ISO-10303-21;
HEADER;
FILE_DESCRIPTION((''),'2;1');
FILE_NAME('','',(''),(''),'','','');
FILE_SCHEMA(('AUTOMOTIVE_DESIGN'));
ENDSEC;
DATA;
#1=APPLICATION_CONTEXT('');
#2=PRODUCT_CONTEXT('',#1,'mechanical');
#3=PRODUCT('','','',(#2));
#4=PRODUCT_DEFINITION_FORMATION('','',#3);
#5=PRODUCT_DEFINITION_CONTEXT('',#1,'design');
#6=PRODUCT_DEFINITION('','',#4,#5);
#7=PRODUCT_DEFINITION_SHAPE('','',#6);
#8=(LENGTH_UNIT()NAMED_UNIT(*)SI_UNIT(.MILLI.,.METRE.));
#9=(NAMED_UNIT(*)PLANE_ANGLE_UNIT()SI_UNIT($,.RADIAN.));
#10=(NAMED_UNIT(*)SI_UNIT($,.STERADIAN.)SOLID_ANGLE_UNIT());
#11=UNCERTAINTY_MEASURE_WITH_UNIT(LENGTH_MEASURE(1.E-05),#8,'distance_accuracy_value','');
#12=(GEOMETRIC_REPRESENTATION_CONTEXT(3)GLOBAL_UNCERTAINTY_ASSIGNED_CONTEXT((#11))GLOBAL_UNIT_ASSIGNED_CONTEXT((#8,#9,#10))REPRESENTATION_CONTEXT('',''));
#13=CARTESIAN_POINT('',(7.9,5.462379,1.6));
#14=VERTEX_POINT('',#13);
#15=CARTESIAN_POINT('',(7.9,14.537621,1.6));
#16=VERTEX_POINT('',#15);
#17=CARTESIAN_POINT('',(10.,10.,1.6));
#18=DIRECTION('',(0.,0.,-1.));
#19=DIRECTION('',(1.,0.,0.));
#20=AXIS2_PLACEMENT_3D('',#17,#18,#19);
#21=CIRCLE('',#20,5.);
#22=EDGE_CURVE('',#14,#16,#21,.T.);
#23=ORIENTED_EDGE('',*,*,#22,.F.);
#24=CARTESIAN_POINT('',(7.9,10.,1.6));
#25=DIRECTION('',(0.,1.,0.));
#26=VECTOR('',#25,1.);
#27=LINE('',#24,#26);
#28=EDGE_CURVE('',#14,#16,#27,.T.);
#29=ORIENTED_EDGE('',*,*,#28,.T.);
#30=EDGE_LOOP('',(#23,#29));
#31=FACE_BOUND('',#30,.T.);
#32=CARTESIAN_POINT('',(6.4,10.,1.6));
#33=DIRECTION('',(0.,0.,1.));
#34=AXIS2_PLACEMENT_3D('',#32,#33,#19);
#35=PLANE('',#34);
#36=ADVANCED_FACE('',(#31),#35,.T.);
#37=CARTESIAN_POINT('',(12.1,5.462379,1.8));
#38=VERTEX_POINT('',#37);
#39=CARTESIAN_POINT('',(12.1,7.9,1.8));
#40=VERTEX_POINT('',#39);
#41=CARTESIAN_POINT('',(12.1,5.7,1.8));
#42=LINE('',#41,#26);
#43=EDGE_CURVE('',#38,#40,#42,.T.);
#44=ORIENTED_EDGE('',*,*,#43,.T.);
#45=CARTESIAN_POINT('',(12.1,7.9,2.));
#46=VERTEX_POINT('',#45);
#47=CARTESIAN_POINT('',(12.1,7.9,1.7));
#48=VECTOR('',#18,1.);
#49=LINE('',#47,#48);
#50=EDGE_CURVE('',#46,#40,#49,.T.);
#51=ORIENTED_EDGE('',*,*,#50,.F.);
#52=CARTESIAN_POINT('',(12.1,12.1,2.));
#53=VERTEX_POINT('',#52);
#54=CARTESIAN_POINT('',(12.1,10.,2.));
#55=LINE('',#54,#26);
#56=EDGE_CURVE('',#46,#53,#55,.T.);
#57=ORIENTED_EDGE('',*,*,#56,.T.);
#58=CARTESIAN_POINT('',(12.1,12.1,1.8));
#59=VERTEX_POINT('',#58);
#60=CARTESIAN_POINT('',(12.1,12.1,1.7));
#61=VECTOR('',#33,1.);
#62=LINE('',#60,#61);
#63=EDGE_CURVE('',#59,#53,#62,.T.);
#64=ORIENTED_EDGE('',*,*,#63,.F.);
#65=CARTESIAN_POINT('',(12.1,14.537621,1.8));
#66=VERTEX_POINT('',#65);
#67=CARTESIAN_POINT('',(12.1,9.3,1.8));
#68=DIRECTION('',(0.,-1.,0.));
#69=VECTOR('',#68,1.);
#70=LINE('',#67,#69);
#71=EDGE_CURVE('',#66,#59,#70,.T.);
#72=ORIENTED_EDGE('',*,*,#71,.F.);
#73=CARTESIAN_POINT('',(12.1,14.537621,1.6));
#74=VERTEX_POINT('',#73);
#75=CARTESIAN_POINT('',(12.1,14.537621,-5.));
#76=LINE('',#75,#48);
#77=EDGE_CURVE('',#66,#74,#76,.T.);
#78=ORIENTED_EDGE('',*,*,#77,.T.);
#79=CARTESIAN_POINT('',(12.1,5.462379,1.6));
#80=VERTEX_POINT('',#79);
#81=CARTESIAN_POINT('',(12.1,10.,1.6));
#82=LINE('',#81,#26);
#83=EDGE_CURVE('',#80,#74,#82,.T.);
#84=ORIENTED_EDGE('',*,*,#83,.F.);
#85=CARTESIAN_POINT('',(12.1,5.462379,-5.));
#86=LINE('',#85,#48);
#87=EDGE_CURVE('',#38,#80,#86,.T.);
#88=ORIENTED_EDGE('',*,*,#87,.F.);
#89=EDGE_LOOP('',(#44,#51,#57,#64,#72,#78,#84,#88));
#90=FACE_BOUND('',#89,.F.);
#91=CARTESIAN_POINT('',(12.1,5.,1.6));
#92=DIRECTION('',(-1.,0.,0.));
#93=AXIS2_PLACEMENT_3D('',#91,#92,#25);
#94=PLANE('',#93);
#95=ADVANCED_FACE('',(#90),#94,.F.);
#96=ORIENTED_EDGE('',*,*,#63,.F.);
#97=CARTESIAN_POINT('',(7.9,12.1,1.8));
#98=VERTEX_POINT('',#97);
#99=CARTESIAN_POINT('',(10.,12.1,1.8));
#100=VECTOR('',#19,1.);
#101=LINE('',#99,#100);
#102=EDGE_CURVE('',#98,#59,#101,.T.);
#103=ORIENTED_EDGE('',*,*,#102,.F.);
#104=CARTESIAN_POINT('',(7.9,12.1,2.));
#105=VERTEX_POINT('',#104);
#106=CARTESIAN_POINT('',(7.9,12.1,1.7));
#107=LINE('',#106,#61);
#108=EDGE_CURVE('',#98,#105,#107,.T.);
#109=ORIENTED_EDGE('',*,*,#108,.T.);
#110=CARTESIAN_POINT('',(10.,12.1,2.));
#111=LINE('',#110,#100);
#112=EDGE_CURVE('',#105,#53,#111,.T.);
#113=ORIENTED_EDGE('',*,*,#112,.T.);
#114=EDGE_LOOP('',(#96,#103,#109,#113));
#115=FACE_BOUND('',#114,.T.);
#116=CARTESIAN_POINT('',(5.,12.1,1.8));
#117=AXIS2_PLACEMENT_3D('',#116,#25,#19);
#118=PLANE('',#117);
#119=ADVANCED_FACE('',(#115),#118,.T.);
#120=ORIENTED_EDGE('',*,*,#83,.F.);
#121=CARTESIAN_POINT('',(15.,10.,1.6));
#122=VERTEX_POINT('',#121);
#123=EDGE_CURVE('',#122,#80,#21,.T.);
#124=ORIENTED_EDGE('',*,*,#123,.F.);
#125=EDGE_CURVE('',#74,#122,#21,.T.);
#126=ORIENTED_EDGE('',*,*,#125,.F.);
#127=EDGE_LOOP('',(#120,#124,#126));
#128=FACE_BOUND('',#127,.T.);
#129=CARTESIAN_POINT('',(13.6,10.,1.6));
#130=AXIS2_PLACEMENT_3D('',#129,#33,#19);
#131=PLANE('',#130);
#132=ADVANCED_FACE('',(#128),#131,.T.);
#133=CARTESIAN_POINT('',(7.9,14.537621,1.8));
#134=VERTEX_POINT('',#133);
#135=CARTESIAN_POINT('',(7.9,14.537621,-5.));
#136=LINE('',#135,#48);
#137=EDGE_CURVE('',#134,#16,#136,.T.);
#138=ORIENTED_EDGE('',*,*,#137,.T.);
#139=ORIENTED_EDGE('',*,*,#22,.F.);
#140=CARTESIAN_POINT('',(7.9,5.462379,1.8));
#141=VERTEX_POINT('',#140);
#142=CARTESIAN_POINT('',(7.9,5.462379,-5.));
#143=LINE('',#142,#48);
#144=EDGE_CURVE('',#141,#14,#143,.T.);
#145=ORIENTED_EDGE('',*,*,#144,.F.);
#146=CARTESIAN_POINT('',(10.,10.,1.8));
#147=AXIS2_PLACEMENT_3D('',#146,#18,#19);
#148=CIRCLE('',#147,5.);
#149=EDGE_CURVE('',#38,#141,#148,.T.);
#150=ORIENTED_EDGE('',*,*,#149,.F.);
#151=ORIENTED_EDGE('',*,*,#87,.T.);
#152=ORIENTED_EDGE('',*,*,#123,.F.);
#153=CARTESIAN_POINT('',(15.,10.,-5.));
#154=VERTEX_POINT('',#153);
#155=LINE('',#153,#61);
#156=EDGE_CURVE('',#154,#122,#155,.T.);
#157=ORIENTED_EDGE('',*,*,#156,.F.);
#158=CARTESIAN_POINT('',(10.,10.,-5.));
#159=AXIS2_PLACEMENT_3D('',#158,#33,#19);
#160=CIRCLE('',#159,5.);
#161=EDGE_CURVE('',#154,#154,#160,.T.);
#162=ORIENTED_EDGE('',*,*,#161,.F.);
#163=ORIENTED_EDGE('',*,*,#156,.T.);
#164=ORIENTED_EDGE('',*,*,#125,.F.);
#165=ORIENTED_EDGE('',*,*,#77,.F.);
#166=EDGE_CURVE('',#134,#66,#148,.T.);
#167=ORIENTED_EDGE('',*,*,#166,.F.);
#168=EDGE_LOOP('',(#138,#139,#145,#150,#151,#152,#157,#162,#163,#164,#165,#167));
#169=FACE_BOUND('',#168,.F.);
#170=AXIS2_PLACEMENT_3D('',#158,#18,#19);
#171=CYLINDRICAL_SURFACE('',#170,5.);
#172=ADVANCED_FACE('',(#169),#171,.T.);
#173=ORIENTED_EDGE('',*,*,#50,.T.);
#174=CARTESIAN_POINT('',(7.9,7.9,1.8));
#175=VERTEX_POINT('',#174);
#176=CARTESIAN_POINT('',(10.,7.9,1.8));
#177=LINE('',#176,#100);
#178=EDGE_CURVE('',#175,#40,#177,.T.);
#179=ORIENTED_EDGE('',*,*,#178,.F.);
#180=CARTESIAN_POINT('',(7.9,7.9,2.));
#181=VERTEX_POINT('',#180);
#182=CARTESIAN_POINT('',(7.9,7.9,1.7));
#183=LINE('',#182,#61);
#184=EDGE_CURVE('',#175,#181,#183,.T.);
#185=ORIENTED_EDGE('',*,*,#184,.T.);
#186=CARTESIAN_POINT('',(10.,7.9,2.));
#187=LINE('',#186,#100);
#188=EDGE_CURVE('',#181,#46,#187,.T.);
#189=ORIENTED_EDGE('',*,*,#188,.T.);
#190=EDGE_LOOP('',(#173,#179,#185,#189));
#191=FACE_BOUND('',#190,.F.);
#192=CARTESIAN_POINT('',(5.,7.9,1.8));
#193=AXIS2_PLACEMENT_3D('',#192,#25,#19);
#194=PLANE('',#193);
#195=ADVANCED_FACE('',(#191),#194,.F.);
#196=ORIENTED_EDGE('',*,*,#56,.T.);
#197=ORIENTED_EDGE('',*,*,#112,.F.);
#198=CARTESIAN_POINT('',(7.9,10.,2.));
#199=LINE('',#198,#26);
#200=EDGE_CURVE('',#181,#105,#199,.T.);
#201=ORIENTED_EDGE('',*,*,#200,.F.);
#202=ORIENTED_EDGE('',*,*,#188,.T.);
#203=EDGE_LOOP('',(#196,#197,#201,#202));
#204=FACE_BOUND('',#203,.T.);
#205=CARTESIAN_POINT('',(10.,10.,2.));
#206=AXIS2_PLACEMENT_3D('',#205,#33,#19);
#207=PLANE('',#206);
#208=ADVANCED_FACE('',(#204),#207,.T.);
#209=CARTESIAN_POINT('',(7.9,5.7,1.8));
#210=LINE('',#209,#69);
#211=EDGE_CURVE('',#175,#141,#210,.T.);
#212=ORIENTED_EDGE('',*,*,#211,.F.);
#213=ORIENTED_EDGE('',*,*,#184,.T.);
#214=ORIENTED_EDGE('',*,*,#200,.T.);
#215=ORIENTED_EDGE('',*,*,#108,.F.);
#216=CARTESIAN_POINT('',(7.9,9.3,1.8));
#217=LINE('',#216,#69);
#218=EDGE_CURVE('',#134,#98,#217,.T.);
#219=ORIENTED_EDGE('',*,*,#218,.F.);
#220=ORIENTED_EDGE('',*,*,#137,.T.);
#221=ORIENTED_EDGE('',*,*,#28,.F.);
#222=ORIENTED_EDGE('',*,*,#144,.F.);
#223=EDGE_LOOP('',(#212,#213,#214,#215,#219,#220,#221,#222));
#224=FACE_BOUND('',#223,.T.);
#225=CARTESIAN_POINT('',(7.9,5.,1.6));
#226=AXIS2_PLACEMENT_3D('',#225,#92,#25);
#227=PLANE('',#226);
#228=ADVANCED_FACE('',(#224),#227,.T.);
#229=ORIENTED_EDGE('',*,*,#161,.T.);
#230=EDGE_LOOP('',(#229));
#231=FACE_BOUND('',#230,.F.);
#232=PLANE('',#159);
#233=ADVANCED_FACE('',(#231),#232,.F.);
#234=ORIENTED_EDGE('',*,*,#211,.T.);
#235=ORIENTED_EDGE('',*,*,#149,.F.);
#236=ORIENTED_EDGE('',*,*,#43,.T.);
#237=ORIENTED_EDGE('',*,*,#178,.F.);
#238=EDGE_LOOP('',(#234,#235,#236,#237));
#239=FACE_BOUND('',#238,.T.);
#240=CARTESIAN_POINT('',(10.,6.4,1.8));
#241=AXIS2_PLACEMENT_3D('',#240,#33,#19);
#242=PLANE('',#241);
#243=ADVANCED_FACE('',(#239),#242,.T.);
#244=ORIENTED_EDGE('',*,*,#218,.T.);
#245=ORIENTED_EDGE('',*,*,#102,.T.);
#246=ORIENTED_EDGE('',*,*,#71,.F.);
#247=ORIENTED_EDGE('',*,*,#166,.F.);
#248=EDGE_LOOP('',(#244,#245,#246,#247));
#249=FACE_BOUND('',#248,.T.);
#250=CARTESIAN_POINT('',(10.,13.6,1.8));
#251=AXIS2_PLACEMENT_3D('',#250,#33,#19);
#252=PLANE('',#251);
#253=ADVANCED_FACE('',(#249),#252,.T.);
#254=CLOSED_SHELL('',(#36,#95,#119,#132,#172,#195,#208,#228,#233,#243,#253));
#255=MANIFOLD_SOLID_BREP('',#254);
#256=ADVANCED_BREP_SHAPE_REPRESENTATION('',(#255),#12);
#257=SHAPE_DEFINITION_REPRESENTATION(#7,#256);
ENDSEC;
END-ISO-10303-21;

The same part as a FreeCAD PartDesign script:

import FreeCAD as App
import Part
import Sketcher

V = App.Vector

doc = App.newDocument("Part")
body = doc.addObject("PartDesign::Body", "Body")

# Sketch on XY plane
sketch1 = body.newObject("Sketcher::SketchObject", "Sketch")
sketch1.AttachmentSupport = (doc.getObject("XY_Plane"), [""])
sketch1.MapMode = "FlatFace"
sketch1.AttachmentOffset = App.Placement(V(0, 0, 1.6), App.Rotation())
sketch1.addGeometry([
    Part.LineSegment(V(12.1, 15, 0), V(12.1, 5, 0)),
    Part.LineSegment(V(12.1, 5, 0), V(15.1, 5, 0)),
    Part.LineSegment(V(15.1, 5, 0), V(15.1, 15, 0)),
    Part.LineSegment(V(15.1, 15, 0), V(12.1, 15, 0)),
], False)
sketch1.addConstraint([
    Sketcher.Constraint("Coincident", 0, 2, 1, 1),
    Sketcher.Constraint("Coincident", 1, 2, 2, 1),
    Sketcher.Constraint("Coincident", 2, 2, 3, 1),
    Sketcher.Constraint("Coincident", 3, 2, 0, 1),
    Sketcher.Constraint("Vertical", 0),
    Sketcher.Constraint("Horizontal", 1),
    Sketcher.Constraint("Vertical", 2),
    Sketcher.Constraint("Horizontal", 3),
    Sketcher.Constraint("DistanceX", 1, 1, 1, 2, 3.0),
    Sketcher.Constraint("DistanceY", 0, 2, 0, 1, 10.0),
    Sketcher.Constraint("DistanceY", -1, 1, 0, 2, 5.0),
    Sketcher.Constraint("DistanceX", -1, 1, 0, 2, 12.1),
])
pad1 = body.newObject("PartDesign::Pad", "Pad")
pad1.Profile = sketch1
pad1.Length = 0.4
body2 = doc.addObject("PartDesign::Body", "Body001")

# Sketch on XY plane
sketch2 = body2.newObject("Sketcher::SketchObject", "Sketch001")
sketch2.AttachmentSupport = (doc.getObject("XY_Plane001"), [""])
sketch2.MapMode = "FlatFace"
sketch2.AttachmentOffset = App.Placement(V(0, 0, 1.8), App.Rotation())
sketch2.addGeometry([
    Part.LineSegment(V(5, 7.9, 0), V(5, 4.9, 0)),
    Part.LineSegment(V(5, 4.9, 0), V(15, 4.9, 0)),
    Part.LineSegment(V(15, 4.9, 0), V(15, 7.9, 0)),
    Part.LineSegment(V(15, 7.9, 0), V(5, 7.9, 0)),
], False)
sketch2.addConstraint([
    Sketcher.Constraint("Coincident", 0, 2, 1, 1),
    Sketcher.Constraint("Coincident", 1, 2, 2, 1),
    Sketcher.Constraint("Coincident", 2, 2, 3, 1),
    Sketcher.Constraint("Coincident", 3, 2, 0, 1),
    Sketcher.Constraint("Vertical", 0),
    Sketcher.Constraint("Horizontal", 1),
    Sketcher.Constraint("Vertical", 2),
    Sketcher.Constraint("Horizontal", 3),
    Sketcher.Constraint("DistanceX", 1, 1, 1, 2, 10.0),
    Sketcher.Constraint("DistanceY", 0, 2, 0, 1, 3.0),
    Sketcher.Constraint("DistanceX", -1, 1, 0, 2, 5.0),
    Sketcher.Constraint("DistanceY", -1, 1, 0, 2, 4.9),
])
pad2 = body2.newObject("PartDesign::Pad", "Pad001")
pad2.Profile = sketch2
pad2.Length = 0.2
body3 = doc.addObject("PartDesign::Body", "Body002")

# Sketch on XY plane
sketch3 = body3.newObject("Sketcher::SketchObject", "Sketch002")
sketch3.AttachmentSupport = (doc.getObject("XY_Plane002"), [""])
sketch3.MapMode = "FlatFace"
sketch3.AttachmentOffset = App.Placement(V(0, 0, 1.6), App.Rotation())
sketch3.addGeometry([
    Part.LineSegment(V(4.9, 15, 0), V(4.9, 5, 0)),
    Part.LineSegment(V(4.9, 5, 0), V(7.9, 5, 0)),
    Part.LineSegment(V(7.9, 5, 0), V(7.9, 15, 0)),
    Part.LineSegment(V(7.9, 15, 0), V(4.9, 15, 0)),
], False)
sketch3.addConstraint([
    Sketcher.Constraint("Coincident", 0, 2, 1, 1),
    Sketcher.Constraint("Coincident", 1, 2, 2, 1),
    Sketcher.Constraint("Coincident", 2, 2, 3, 1),
    Sketcher.Constraint("Coincident", 3, 2, 0, 1),
    Sketcher.Constraint("Vertical", 0),
    Sketcher.Constraint("Horizontal", 1),
    Sketcher.Constraint("Vertical", 2),
    Sketcher.Constraint("Horizontal", 3),
    Sketcher.Constraint("DistanceX", 1, 1, 1, 2, 3.0),
    Sketcher.Constraint("DistanceY", 0, 2, 0, 1, 10.0),
    Sketcher.Constraint("DistanceY", -1, 1, 0, 2, 5.0),
    Sketcher.Constraint("DistanceX", -1, 1, 0, 2, 4.9),
])
pad3 = body3.newObject("PartDesign::Pad", "Pad002")
pad3.Profile = sketch3
pad3.Length = 0.4
body4 = doc.addObject("PartDesign::Body", "Body003")

# Sketch on XY plane
sketch4 = body4.newObject("Sketcher::SketchObject", "Sketch003")
sketch4.AttachmentSupport = (doc.getObject("XY_Plane003"), [""])
sketch4.MapMode = "FlatFace"
sketch4.AttachmentOffset = App.Placement(V(0, 0, 1.8), App.Rotation())
sketch4.addGeometry([
    Part.LineSegment(V(5, 15.1, 0), V(5, 12.1, 0)),
    Part.LineSegment(V(5, 12.1, 0), V(15, 12.1, 0)),
    Part.LineSegment(V(15, 12.1, 0), V(15, 15.1, 0)),
    Part.LineSegment(V(15, 15.1, 0), V(5, 15.1, 0)),
], False)
sketch4.addConstraint([
    Sketcher.Constraint("Coincident", 0, 2, 1, 1),
    Sketcher.Constraint("Coincident", 1, 2, 2, 1),
    Sketcher.Constraint("Coincident", 2, 2, 3, 1),
    Sketcher.Constraint("Coincident", 3, 2, 0, 1),
    Sketcher.Constraint("Vertical", 0),
    Sketcher.Constraint("Horizontal", 1),
    Sketcher.Constraint("Vertical", 2),
    Sketcher.Constraint("Horizontal", 3),
    Sketcher.Constraint("DistanceX", 1, 1, 1, 2, 10.0),
    Sketcher.Constraint("DistanceY", 0, 2, 0, 1, 3.0),
    Sketcher.Constraint("DistanceX", -1, 1, 0, 2, 5.0),
    Sketcher.Constraint("DistanceY", -1, 1, 0, 2, 12.1),
])
pad4 = body4.newObject("PartDesign::Pad", "Pad003")
pad4.Profile = sketch4
pad4.Length = 0.2
doc.recompute()

boolean = body4.newObject("PartDesign::Boolean", "Boolean")
boolean.Type = "Fuse"
boolean.addObjects([body])
doc.recompute()

boolean2 = body4.newObject("PartDesign::Boolean", "Boolean001")
boolean2.Type = "Fuse"
boolean2.addObjects([body2])
doc.recompute()

boolean3 = body4.newObject("PartDesign::Boolean", "Boolean002")
boolean3.Type = "Fuse"
boolean3.addObjects([body3])
body5 = doc.addObject("PartDesign::Body", "Body004")

# Sketch on XY plane
sketch5 = body5.newObject("Sketcher::SketchObject", "Sketch004")
sketch5.AttachmentSupport = (doc.getObject("XY_Plane004"), [""])
sketch5.MapMode = "FlatFace"
sketch5.AttachmentOffset = App.Placement(V(0, 0, -5), App.Rotation())
sketch5.addGeometry(Part.Circle(V(10, 10, 0), V(0, 0, 1), 5), False)
sketch5.addConstraint([
    Sketcher.Constraint("Diameter", 0, 10.0),
    Sketcher.Constraint("DistanceX", -1, 1, 0, 3, 10.0),
    Sketcher.Constraint("DistanceY", -1, 1, 0, 3, 10.0),
])
pad5 = body5.newObject("PartDesign::Pad", "Pad004")
pad5.Profile = sketch5
pad5.Length = 7
doc.recompute()

boolean4 = body5.newObject("PartDesign::Boolean", "Boolean003")
boolean4.Type = "Cut"
boolean4.addObjects([body4])

doc.recompute()
